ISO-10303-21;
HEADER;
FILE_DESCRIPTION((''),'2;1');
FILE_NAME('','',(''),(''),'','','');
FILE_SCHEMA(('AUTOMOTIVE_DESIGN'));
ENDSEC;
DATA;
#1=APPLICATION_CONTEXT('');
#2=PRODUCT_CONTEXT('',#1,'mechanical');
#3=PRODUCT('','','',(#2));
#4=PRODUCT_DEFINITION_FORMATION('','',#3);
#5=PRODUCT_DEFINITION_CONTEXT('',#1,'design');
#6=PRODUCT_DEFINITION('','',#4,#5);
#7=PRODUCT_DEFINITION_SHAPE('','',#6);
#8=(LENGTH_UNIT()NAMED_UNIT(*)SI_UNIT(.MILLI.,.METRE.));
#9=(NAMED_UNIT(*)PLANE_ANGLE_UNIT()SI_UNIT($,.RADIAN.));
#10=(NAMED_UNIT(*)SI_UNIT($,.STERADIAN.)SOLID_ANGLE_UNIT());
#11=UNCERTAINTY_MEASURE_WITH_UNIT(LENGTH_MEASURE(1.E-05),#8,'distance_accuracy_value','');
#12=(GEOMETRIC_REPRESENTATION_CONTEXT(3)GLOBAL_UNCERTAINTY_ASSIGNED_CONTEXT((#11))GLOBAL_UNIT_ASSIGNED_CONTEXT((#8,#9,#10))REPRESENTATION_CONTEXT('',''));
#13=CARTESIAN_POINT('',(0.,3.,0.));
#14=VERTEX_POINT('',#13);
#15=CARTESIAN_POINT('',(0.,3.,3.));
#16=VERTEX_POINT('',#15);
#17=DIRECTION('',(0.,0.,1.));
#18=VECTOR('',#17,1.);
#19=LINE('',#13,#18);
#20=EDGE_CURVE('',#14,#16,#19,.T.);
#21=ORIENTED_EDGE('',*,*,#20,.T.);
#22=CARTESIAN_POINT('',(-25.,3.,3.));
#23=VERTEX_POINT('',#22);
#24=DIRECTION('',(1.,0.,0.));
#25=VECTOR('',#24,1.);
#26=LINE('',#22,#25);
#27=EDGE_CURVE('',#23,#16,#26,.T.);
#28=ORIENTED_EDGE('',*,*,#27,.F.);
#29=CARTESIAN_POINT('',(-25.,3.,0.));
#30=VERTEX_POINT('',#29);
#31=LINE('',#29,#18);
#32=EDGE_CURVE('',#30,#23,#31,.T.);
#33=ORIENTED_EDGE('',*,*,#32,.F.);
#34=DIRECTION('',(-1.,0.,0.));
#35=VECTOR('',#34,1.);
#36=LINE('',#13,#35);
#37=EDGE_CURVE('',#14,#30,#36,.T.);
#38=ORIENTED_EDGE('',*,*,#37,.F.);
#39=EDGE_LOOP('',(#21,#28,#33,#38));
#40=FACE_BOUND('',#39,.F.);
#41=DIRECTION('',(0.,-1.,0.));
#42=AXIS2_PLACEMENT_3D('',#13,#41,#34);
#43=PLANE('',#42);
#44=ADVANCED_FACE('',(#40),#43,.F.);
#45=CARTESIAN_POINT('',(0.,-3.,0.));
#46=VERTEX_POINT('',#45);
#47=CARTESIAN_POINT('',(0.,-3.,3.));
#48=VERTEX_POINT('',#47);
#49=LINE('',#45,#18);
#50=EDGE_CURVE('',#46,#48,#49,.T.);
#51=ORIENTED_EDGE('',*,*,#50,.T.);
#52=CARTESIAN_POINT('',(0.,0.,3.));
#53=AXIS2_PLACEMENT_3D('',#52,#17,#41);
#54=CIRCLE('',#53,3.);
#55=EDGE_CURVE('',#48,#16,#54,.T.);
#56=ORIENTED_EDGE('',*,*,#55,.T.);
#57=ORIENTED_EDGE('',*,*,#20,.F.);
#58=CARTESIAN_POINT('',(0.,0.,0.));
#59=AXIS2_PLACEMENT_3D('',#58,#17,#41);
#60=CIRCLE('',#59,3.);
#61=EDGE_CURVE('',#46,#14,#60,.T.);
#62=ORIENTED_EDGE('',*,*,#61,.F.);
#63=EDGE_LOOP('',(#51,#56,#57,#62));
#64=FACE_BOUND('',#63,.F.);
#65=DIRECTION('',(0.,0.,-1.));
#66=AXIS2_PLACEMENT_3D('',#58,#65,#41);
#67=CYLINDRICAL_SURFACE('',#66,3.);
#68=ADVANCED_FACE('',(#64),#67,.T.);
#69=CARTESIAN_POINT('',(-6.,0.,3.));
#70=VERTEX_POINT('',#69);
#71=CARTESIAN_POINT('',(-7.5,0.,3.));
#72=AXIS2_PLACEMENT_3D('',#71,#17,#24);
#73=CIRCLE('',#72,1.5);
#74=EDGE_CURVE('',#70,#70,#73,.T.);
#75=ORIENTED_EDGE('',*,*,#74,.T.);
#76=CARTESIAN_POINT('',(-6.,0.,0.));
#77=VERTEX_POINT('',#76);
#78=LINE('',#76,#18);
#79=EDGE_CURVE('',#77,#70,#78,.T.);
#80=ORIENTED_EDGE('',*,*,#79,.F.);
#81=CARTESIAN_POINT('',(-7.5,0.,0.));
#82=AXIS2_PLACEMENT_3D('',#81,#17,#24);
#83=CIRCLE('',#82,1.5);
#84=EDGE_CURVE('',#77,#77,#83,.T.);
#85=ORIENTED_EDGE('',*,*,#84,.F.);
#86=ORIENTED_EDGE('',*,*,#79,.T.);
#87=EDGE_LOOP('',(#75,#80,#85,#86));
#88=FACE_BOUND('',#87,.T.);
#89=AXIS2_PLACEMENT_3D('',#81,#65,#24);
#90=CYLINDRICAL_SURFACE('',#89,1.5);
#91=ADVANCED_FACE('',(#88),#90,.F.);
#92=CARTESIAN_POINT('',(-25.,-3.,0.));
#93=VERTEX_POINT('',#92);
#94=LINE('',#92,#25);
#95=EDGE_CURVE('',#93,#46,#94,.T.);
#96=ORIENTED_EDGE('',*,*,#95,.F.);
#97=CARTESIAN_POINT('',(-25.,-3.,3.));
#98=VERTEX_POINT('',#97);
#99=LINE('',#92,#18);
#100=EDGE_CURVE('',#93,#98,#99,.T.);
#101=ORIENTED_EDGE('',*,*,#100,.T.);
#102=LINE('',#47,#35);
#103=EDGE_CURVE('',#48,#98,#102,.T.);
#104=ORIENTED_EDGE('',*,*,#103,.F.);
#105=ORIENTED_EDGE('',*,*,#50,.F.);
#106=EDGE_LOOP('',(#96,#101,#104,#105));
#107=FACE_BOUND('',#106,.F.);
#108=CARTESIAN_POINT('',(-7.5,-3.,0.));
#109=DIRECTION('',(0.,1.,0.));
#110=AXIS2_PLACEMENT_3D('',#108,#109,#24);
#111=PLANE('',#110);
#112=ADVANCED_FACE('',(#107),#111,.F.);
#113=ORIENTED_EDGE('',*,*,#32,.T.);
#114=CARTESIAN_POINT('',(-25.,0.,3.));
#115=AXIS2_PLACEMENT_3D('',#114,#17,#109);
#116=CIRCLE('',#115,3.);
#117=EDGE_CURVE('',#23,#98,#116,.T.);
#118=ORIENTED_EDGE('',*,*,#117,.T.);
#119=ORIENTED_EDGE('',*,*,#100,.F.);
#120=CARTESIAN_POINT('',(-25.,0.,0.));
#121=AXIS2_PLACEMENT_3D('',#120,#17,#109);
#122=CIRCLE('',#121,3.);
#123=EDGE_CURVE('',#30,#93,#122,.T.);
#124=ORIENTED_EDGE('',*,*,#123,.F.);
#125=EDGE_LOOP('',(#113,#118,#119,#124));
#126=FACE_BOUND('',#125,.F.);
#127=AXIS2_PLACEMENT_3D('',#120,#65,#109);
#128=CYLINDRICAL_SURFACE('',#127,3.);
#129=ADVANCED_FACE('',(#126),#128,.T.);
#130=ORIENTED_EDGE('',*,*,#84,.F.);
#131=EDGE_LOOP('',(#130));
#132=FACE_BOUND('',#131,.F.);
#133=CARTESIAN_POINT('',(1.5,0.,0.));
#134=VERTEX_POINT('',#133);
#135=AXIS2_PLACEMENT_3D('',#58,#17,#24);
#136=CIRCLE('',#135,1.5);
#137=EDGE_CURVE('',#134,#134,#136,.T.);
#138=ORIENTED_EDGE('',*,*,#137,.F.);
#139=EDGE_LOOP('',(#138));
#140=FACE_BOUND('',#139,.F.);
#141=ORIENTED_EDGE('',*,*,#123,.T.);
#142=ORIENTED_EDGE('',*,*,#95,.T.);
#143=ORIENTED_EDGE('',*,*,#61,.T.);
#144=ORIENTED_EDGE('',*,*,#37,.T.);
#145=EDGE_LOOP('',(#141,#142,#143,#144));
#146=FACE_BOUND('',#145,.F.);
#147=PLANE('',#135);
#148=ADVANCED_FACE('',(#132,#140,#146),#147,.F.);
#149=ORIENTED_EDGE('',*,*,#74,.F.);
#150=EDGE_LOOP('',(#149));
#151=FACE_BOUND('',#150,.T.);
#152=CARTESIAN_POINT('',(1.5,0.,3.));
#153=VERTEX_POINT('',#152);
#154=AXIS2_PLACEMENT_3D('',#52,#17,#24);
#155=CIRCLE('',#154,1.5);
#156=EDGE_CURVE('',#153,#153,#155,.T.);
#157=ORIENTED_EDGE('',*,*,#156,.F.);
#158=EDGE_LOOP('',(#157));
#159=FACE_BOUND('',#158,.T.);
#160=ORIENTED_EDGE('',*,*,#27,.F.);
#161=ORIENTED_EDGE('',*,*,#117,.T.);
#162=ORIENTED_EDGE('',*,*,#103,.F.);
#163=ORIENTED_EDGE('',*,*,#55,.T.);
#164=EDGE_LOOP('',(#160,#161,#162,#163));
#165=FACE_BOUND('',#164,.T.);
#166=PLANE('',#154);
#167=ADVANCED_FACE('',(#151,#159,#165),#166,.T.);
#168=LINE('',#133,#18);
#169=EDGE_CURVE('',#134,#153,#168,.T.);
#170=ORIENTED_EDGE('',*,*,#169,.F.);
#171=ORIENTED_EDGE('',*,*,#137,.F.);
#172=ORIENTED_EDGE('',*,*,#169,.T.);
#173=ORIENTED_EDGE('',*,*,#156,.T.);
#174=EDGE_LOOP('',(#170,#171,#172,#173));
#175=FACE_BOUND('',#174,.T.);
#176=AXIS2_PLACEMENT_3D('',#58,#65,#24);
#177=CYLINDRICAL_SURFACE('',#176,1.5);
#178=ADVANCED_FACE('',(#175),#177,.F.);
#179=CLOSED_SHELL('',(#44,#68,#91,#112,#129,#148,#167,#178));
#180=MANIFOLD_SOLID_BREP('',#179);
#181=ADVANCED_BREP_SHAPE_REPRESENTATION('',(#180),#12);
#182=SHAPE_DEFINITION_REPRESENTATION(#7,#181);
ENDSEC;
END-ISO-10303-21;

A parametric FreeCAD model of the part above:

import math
import FreeCAD as App
import Part
import Sketcher

V = App.Vector
Q = App.Units.Quantity

doc = App.newDocument("Part")
params = doc.addObject("Spreadsheet::Sheet", "Params")
for row, (alias, value) in enumerate([
    ("sketch1_diameter", "3 mm"),
    ("sketch1_radius", "3 mm"),
    ("sketch1_width", "25 mm"),
    ("pad1_length", "3 mm"),
], start=1):
    params.set(f"A{row}", alias)
    params.set(f"B{row}", "=" + value)
    params.setAlias(f"B{row}", alias)

body = doc.addObject("PartDesign::Body", "Body")

sketch1 = body.newObject("Sketcher::SketchObject", "Sketch")
sketch1.AttachmentSupport = (doc.getObject("XY_Plane"), [""])
sketch1.MapMode = "FlatFace"
sketch1.addGeometry(Part.ArcOfCircle(Part.Circle(V(0, 0, 0), V(0, 0, 1), 3), math.radians(-90), math.radians(90)), False)
sketch1.addGeometry(Part.LineSegment(V(0, 3, 0), V(-25, 3, 0)), False)
sketch1.addGeometry(Part.ArcOfCircle(Part.Circle(V(-25, 0, 0), V(0, 0, 1), 3), math.radians(90), math.radians(270)), False)
sketch1.addGeometry(Part.LineSegment(V(-25, -3, 0), V(0, -3, 0)), False)
sketch1.addGeometry(Part.Circle(V(-7.5, 0, 0), V(0, 0, 1), 1.5), False)
sketch1.addGeometry(Part.Circle(V(0, 0, 0), V(0, 0, 1), 1.5), False)
sketch1.addConstraint(Sketcher.Constraint("Tangent", 0, 2, 1, 1))
sketch1.addConstraint(Sketcher.Constraint("Tangent", 1, 2, 2, 1))
sketch1.addConstraint(Sketcher.Constraint("Tangent", 2, 2, 3, 1))
sketch1.addConstraint(Sketcher.Constraint("Tangent", 3, 2, 0, 1))
sketch1.addConstraint(Sketcher.Constraint("Horizontal", 1))
sketch1.addConstraint(Sketcher.Constraint("Horizontal", 3))
sketch1.addConstraint(Sketcher.Constraint("Coincident", 0, 3, -1, 1))
sketch1.addConstraint(Sketcher.Constraint("Coincident", 5, 3, -1, 1))
sketch1.addConstraint(Sketcher.Constraint("Equal", 4, 5))
sketch1.addConstraint(Sketcher.Constraint("PointOnObject", 4, 3, -1))
sketch1.addConstraint(Sketcher.Constraint("Diameter", 4, Q("3 mm")))
sketch1.addConstraint(Sketcher.Constraint("Radius", 0, Q("3 mm")))
sketch1.addConstraint(Sketcher.Constraint("DistanceX", 1, 2, 1, 1, Q("25 mm")))
sketch1.addConstraint(Sketcher.Constraint("DistanceX", 4, 3, -1, 1, Q("7.5 mm")))
sketch1.setExpression("Constraints[10]", "Params.sketch1_diameter")
sketch1.setExpression("Constraints[11]", "Params.sketch1_radius")
sketch1.setExpression("Constraints[12]", "Params.sketch1_width")
pad1 = body.newObject("PartDesign::Pad", "Pad")
pad1.Profile = sketch1
pad1.setExpression("Length", "Params.pad1_length")

doc.recompute()
